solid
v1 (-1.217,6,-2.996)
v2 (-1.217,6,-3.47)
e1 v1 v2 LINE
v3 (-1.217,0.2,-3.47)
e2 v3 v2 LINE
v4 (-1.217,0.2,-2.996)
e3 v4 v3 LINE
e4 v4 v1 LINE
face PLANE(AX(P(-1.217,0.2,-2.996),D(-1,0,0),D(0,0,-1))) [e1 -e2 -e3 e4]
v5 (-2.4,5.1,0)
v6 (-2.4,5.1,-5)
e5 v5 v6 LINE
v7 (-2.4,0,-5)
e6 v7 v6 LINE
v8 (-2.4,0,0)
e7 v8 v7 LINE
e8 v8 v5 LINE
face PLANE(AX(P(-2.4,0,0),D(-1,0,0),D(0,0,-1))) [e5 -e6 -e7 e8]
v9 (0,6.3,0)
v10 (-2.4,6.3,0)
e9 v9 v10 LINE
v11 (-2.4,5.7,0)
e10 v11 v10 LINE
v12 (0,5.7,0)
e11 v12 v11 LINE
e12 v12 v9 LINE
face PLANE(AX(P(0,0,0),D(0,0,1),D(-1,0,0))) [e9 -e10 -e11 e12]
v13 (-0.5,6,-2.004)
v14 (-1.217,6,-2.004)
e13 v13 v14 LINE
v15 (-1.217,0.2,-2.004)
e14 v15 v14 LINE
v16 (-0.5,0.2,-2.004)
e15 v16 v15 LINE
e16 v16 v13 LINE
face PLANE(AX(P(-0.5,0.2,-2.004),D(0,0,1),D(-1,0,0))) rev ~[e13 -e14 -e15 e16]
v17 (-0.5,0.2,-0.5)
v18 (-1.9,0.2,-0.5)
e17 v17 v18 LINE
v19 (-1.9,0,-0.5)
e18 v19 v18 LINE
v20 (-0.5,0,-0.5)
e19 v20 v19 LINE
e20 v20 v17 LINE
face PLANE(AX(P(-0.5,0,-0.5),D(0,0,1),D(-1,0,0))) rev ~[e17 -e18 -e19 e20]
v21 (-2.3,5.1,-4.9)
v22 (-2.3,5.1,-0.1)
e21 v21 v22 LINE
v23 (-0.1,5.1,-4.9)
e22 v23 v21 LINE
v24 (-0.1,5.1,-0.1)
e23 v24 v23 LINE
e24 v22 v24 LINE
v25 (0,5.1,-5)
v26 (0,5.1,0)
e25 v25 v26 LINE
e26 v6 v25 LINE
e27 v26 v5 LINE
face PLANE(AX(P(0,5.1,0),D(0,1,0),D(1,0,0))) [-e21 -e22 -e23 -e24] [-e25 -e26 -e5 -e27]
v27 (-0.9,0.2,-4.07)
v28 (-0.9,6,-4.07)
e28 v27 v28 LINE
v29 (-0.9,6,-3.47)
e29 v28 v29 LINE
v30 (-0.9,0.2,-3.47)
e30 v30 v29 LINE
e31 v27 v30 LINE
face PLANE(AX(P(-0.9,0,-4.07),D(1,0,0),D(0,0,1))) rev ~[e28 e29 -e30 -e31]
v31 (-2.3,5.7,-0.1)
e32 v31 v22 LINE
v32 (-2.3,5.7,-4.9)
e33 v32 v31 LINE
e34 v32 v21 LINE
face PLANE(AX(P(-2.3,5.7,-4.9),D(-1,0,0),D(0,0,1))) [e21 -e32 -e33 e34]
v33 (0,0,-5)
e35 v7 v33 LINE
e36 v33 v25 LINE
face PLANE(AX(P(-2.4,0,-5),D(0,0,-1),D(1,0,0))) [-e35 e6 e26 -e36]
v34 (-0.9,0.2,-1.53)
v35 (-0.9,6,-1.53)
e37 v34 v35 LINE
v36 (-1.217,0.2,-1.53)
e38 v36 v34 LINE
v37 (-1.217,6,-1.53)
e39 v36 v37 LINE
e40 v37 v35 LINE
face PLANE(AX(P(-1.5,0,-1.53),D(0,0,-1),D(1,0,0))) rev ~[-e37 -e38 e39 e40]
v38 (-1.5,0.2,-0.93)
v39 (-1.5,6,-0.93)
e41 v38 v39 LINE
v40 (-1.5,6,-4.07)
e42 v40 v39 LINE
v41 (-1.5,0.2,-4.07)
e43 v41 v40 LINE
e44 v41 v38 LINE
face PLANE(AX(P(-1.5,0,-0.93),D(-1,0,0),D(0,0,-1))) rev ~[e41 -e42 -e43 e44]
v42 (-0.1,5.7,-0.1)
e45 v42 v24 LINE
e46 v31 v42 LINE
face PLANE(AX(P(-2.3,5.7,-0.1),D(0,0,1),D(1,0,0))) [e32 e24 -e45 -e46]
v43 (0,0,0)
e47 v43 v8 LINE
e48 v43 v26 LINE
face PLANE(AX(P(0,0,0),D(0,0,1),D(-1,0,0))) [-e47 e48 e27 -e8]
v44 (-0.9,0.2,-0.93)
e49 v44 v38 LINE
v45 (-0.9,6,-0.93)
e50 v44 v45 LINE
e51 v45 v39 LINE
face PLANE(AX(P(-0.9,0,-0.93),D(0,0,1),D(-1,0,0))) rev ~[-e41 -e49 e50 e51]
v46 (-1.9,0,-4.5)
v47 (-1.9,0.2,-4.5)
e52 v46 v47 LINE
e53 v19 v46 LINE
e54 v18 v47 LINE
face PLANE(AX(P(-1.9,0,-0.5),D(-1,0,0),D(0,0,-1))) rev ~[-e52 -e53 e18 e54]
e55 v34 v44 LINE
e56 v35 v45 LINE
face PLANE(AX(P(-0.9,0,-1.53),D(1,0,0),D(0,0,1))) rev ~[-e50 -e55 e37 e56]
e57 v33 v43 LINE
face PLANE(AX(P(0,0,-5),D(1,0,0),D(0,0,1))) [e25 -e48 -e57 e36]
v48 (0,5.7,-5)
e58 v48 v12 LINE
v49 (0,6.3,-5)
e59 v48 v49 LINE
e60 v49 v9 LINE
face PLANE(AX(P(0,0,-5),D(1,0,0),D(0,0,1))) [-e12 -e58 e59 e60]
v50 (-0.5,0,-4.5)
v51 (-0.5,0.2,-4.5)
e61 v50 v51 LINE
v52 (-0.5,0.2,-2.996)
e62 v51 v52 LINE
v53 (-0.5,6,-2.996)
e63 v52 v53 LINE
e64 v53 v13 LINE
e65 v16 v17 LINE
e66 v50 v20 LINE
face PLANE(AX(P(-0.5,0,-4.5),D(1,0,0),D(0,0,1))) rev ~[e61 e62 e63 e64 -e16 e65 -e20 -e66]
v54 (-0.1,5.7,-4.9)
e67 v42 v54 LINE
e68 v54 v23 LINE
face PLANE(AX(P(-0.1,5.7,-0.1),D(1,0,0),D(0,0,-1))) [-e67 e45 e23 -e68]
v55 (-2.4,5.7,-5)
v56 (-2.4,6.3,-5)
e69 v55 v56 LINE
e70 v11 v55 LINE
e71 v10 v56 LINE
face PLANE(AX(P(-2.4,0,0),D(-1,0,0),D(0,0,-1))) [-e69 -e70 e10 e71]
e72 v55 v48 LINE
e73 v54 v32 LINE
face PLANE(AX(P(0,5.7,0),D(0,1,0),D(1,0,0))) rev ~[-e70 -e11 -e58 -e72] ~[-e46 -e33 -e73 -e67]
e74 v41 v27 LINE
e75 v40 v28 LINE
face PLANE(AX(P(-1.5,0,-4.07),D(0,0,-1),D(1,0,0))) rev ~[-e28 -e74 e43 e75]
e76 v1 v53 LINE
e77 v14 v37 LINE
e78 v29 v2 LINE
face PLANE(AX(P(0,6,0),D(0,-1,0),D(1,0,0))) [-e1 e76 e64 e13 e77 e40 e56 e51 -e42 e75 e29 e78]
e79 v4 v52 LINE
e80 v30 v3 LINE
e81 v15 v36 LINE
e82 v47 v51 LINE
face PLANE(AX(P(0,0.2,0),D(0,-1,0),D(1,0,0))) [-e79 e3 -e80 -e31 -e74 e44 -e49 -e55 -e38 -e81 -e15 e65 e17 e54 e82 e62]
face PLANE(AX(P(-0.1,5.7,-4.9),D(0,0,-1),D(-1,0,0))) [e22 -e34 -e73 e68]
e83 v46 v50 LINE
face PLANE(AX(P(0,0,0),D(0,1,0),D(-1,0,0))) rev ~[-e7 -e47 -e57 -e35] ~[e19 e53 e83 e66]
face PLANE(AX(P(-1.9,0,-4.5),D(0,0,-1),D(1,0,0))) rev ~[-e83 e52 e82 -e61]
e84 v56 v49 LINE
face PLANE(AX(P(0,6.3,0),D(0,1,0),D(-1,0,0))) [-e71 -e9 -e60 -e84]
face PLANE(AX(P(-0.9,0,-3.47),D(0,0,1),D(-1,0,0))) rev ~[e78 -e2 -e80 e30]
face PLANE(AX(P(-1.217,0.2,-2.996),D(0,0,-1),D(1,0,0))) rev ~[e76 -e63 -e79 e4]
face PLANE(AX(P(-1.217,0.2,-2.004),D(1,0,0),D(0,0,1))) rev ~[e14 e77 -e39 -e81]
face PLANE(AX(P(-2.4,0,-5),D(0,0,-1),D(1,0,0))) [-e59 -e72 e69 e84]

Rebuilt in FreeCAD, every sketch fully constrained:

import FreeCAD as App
import Part
import Sketcher
Q = App.Units.Quantity


def add_polygon(sketch, points):
    """Adds a closed chain of lines whose ends are joined by coincident constraints."""
    first, n = sketch.GeometryCount, len(points)
    for a, b in zip(points, points[1:] + points[:1]):
        sketch.addGeometry(Part.LineSegment(App.Vector(*a, 0), App.Vector(*b, 0)), False)
    for i in range(n):
        sketch.addConstraint(Sketcher.Constraint("Coincident", first + i, 2, first + (i + 1) % n, 1))

doc = App.newDocument("Part")
body = doc.addObject("PartDesign::Body", "Body")

# Sketch on XZ plane
sketch1 = body.newObject("Sketcher::SketchObject", "Sketch")
sketch1.AttachmentSupport = (doc.getObject("XZ_Plane"), [""])
sketch1.MapMode = "FlatFace"
add_polygon(sketch1, [(-2.4, 0), (0, 0), (0, -5), (-2.4, -5)])  # lines 0-3
sketch1.addConstraint([
    Sketcher.Constraint("Horizontal", 0),
    Sketcher.Constraint("Vertical", 1),
    Sketcher.Constraint("Horizontal", 2),
    Sketcher.Constraint("Vertical", 3),
    Sketcher.Constraint("Coincident", 0, 2, -1, 1),
    Sketcher.Constraint("DistanceY", 1, 2, 1, 1, Q("5 mm")),
    Sketcher.Constraint("DistanceX", 0, 1, 0, 2, Q("2.4 mm")),
])
pad1 = body.newObject("PartDesign::Pad", "Pad")
pad1.Profile = sketch1
pad1.Length = 6.3
pad1.Reversed = True

# Sketch on XZ plane
sketch2 = body.newObject("Sketcher::SketchObject", "Sketch001")
sketch2.AttachmentSupport = (doc.getObject("XZ_Plane"), [""])
sketch2.MapMode = "FlatFace"
add_polygon(sketch2, [(-0.5, -4.5), (-0.5, -0.5), (-1.9, -0.5), (-1.9, -4.5)])  # lines 0-3
sketch2.addConstraint([
    Sketcher.Constraint("Vertical", 0),
    Sketcher.Constraint("Horizontal", 1),
    Sketcher.Constraint("Vertical", 2),
    Sketcher.Constraint("Horizontal", 3),
    Sketcher.Constraint("DistanceY", 0, 1, 0, 2, Q("4 mm")),
    Sketcher.Constraint("DistanceX", 1, 2, 1, 1, Q("1.4 mm")),
    Sketcher.Constraint("DistanceX", 0, 2, -1, 1, Q("0.5 mm")),
    Sketcher.Constraint("DistanceY", 0, 2, -1, 1, Q("0.5 mm")),
])
pocket1 = body.newObject("PartDesign::Pocket", "Pocket")
pocket1.Profile = sketch2
pocket1.Length = 0.2

# Sketch on XZ plane
sketch3 = body.newObject("Sketcher::SketchObject", "Sketch002")
sketch3.AttachmentSupport = (doc.getObject("XZ_Plane"), [""])
sketch3.MapMode = "FlatFace"
add_polygon(sketch3, [(-0.9, -4.07), (-0.9, -3.47), (-1.5, -3.47), (-1.5, -4.07)])  # lines 0-3
add_polygon(sketch3, [(-0.9, -1.53), (-0.9, -0.93), (-1.5, -0.93), (-1.5, -1.53)])  # lines 4-7
sketch3.addConstraint([
    Sketcher.Constraint("Vertical", 0),
    Sketcher.Constraint("Horizontal", 1),
    Sketcher.Constraint("Vertical", 2),
    Sketcher.Constraint("Horizontal", 3),
    Sketcher.Constraint("Vertical", 4),
    Sketcher.Constraint("Horizontal", 5),
    Sketcher.Constraint("Vertical", 6),
    Sketcher.Constraint("Horizontal", 7),
    Sketcher.Constraint("Vertical", 3, 2, 4, 2),
    Sketcher.Constraint("Vertical", 2, 2, 5, 2),
    Sketcher.Constraint("Equal", 7, 0),
    Sketcher.Constraint("Equal", 2, 4),
    Sketcher.Constraint("DistanceX", 1, 2, 1, 1, Q("0.6 mm")),
    Sketcher.Constraint("DistanceX", 0, 2, -1, 1, Q("0.9 mm")),
    Sketcher.Constraint("DistanceY", 4, 2, -1, 1, Q("0.93 mm")),
    Sketcher.Constraint("DistanceY", 0, 2, 4, 2, Q("2.54 mm")),
])
pocket2 = body.newObject("PartDesign::Pocket", "Pocket001")
pocket2.Profile = sketch3
pocket2.Length = 6

# Sketch on XZ plane
sketch4 = body.newObject("Sketcher::SketchObject", "Sketch003")
sketch4.AttachmentSupport = (doc.getObject("XZ_Plane"), [""])
sketch4.MapMode = "FlatFace"
sketch4.AttachmentOffset = App.Placement(App.Vector(0, 0, -5.7), App.Rotation())
add_polygon(sketch4, [(-3, 1), (1, 1), (1, -6), (-3, -6)])  # lines 0-3
add_polygon(sketch4, [(-2.3, -4.9), (-0.1, -4.9), (-0.1, -0.1), (-2.3, -0.1)])  # lines 4-7
sketch4.addConstraint([
    Sketcher.Constraint("Horizontal", 0),
    Sketcher.Constraint("Vertical", 1),
    Sketcher.Constraint("Horizontal", 2),
    Sketcher.Constraint("Vertical", 3),
    Sketcher.Constraint("Horizontal", 4),
    Sketcher.Constraint("Vertical", 5),
    Sketcher.Constraint("Horizontal", 6),
    Sketcher.Constraint("Vertical", 7),
    Sketcher.Constraint("DistanceX", 4, 2, -1, 1, Q("0.1 mm")),
    Sketcher.Constraint("DistanceY", 5, 2, -1, 1, Q("0.1 mm")),
    Sketcher.Constraint("DistanceX", 0, 1, 0, 2, Q("4 mm")),
    Sketcher.Constraint("DistanceY", 1, 2, 1, 1, Q("7 mm")),
    Sketcher.Constraint("DistanceX", 4, 1, 4, 2, Q("2.2 mm")),
    Sketcher.Constraint("DistanceY", 5, 1, 5, 2, Q("4.8 mm")),
    Sketcher.Constraint("DistanceX", -1, 1, 0, 2, Q("1 mm")),
    Sketcher.Constraint("DistanceY", -1, 1, 0, 2, Q("1 mm")),
])
pocket3 = body.newObject("PartDesign::Pocket", "Pocket002")
pocket3.Profile = sketch4
pocket3.Length = 0.6
pocket3.Reversed = True

# Sketch on XZ plane
sketch5 = body.newObject("Sketcher::SketchObject", "Sketch004")
sketch5.AttachmentSupport = (doc.getObject("XZ_Plane"), [""])
sketch5.MapMode = "FlatFace"
sketch5.AttachmentOffset = App.Placement(App.Vector(0, 0, -0.2), App.Rotation())
add_polygon(sketch5, [(-0.5, -2.996), (-0.5, -2.004), (-1.217, -2.004), (-1.217, -1.53), (-1.5, -1.53), (-1.5, -3.47), (-1.217, -3.47), (-1.217, -2.996)])  # lines 0-7
sketch5.addConstraint([
    Sketcher.Constraint("Vertical", 0),
    Sketcher.Constraint("Horizontal", 1),
    Sketcher.Constraint("Vertical", 2),
    Sketcher.Constraint("Horizontal", 3),
    Sketcher.Constraint("Vertical", 4),
    Sketcher.Constraint("Horizontal", 5),
    Sketcher.Constraint("Vertical", 6),
    Sketcher.Constraint("Horizontal", 7),
    Sketcher.Constraint("Vertical", 2, 2, 5, 2),
    Sketcher.Constraint("Equal", 2, 6),
    Sketcher.Constraint("DistanceX", 3, 2, 3, 1, Q("0.283 mm")),
    Sketcher.Constraint("DistanceY", 2, 1, 2, 2, Q("0.474 mm")),
    Sketcher.Constraint("DistanceX", 3, 2, 0, 2, Q("1 mm")),
    Sketcher.Constraint("DistanceY", 4, 2, 4, 1, Q("1.94 mm")),
    Sketcher.Constraint("DistanceX", 0, 2, -1, 1, Q("0.5 mm")),
    Sketcher.Constraint("DistanceY", 2, 2, -1, 1, Q("1.53 mm")),
])
pocket4 = body.newObject("PartDesign::Pocket", "Pocket003")
pocket4.Profile = sketch5
pocket4.Length = 5.8

doc.recompute()
